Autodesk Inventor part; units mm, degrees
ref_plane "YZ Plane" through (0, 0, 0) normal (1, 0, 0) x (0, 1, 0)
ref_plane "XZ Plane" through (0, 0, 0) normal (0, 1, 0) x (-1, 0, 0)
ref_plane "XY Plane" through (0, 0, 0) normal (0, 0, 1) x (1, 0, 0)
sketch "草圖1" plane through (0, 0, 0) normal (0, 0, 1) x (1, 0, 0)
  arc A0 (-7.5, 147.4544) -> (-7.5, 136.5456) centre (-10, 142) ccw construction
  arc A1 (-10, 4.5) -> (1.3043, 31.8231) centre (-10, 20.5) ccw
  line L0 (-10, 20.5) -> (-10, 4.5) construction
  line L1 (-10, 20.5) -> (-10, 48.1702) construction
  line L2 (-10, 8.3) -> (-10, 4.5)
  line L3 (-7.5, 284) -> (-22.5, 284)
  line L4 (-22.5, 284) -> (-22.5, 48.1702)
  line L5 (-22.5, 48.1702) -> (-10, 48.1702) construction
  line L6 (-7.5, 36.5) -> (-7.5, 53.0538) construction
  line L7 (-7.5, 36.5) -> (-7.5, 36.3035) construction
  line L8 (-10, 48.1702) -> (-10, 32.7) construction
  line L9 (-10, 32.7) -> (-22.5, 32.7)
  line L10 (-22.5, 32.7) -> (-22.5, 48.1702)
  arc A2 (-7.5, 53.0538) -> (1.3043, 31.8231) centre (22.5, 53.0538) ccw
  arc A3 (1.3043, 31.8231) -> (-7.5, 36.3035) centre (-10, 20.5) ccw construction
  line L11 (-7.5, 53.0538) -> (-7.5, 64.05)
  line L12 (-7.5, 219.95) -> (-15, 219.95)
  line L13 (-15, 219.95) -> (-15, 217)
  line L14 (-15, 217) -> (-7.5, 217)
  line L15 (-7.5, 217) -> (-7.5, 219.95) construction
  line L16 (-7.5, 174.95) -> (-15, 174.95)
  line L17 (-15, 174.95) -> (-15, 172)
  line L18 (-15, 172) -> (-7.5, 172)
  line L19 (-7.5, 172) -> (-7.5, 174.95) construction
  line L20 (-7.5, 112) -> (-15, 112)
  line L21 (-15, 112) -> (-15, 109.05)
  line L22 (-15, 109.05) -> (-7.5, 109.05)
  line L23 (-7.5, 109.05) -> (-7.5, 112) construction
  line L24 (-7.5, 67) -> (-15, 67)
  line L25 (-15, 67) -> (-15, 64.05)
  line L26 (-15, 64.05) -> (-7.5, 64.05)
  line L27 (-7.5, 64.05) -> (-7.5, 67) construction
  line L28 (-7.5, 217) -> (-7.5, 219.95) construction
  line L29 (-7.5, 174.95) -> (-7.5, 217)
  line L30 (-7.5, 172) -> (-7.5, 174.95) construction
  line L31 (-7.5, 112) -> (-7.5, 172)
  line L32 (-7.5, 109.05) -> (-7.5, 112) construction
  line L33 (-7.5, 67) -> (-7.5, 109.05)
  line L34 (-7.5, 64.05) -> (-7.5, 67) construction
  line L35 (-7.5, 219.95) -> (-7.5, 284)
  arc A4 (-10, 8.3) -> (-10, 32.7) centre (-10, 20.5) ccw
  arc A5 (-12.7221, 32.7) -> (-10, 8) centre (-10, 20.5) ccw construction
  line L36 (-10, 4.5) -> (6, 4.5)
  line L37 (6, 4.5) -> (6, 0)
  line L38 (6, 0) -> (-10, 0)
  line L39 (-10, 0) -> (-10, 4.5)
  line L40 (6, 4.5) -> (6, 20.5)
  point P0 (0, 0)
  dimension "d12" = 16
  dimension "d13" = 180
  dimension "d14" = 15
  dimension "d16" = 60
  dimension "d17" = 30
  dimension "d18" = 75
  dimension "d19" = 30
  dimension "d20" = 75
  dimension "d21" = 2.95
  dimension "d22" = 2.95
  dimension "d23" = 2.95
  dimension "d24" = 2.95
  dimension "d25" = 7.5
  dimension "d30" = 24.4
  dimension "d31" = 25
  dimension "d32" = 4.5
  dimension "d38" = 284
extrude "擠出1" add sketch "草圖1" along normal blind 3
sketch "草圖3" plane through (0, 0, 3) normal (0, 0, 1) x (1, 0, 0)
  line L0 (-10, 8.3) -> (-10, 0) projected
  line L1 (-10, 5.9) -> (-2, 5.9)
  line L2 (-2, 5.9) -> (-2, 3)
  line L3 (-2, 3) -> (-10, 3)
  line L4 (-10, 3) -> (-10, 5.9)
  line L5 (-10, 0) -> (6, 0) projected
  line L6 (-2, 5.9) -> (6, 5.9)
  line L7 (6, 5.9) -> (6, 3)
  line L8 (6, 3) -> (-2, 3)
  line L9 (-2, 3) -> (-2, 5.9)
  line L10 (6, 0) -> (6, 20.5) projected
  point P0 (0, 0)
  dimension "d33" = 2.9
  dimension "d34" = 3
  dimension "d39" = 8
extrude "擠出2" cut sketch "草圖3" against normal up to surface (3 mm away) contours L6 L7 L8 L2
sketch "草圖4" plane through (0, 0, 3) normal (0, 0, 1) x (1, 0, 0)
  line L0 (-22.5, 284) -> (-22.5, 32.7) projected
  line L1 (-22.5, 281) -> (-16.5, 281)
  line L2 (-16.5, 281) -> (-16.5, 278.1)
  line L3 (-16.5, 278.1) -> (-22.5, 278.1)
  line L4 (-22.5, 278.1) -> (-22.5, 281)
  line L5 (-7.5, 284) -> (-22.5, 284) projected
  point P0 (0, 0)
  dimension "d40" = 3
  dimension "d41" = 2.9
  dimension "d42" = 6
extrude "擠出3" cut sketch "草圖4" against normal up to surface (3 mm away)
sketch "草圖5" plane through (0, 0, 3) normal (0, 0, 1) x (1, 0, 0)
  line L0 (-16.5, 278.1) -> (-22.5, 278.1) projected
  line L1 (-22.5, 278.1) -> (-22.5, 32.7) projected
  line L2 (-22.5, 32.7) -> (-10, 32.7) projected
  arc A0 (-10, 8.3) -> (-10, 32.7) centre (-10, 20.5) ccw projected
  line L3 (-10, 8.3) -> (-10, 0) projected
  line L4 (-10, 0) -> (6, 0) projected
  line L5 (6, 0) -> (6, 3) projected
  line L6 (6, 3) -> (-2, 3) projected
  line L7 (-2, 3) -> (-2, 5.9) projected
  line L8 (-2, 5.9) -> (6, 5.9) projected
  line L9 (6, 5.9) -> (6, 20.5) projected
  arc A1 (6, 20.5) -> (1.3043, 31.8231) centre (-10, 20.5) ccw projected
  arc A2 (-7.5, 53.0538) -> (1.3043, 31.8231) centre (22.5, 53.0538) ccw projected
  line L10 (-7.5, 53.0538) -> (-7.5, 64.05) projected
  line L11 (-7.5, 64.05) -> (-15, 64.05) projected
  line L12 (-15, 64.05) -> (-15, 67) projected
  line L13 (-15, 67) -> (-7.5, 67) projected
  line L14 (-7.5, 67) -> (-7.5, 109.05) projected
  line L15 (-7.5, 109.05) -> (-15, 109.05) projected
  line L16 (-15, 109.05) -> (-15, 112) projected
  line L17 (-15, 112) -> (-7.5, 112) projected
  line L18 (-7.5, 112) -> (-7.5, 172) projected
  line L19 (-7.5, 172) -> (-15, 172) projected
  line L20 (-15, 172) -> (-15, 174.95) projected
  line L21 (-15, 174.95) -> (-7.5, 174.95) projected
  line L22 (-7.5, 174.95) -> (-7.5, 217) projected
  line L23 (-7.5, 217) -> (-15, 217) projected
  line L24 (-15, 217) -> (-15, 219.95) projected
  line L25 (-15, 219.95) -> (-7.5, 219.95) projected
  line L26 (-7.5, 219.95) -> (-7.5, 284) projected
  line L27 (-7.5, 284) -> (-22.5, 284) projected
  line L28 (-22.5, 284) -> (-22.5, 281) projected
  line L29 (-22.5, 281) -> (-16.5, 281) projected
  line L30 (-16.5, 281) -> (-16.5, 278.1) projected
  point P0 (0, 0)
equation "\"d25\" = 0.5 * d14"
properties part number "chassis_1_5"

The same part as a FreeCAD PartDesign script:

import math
import FreeCAD as App
import Part
import Sketcher

doc = App.newDocument("Part")
body = doc.addObject("PartDesign::Body", "Body")

# Sketch on XY plane
sketch1 = body.newObject("Sketcher::SketchObject", "Sketch")
sketch1.AttachmentSupport = (doc.getObject("XY_Plane"), [""])
sketch1.MapMode = "FlatFace"
sketch1.addGeometry(Part.LineSegment(App.Vector(-10, 8.3, 0), App.Vector(-10, 0, 0)), False)
sketch1.addGeometry(Part.LineSegment(App.Vector(-10, 0, 0), App.Vector(6, 0, 0)), False)
sketch1.addGeometry(Part.LineSegment(App.Vector(6, 0, 0), App.Vector(6, 20.5, 0)), False)
sketch1.addGeometry(Part.ArcOfCircle(Part.Circle(App.Vector(-10, 20.5, 0), App.Vector(0, 0, 1), 16), math.radians(0), math.radians(45)), False)
sketch1.addGeometry(Part.ArcOfCircle(Part.Circle(App.Vector(22.5, 53.1, 0), App.Vector(0, 0, 1), 30), math.radians(180), math.radians(225)), False)
sketch1.addGeometry(Part.LineSegment(App.Vector(-7.5, 53.1, 0), App.Vector(-7.5, 64, 0)), False)
sketch1.addGeometry(Part.LineSegment(App.Vector(-7.5, 64, 0), App.Vector(-15, 64, 0)), False)
sketch1.addGeometry(Part.LineSegment(App.Vector(-15, 64, 0), App.Vector(-15, 67, 0)), False)
sketch1.addGeometry(Part.LineSegment(App.Vector(-15, 67, 0), App.Vector(-7.5, 67, 0)), False)
sketch1.addGeometry(Part.LineSegment(App.Vector(-7.5, 67, 0), App.Vector(-7.5, 109, 0)), False)
sketch1.addGeometry(Part.LineSegment(App.Vector(-7.5, 109, 0), App.Vector(-15, 109, 0)), False)
sketch1.addGeometry(Part.LineSegment(App.Vector(-15, 109, 0), App.Vector(-15, 112, 0)), False)
sketch1.addGeometry(Part.LineSegment(App.Vector(-15, 112, 0), App.Vector(-7.5, 112, 0)), False)
sketch1.addGeometry(Part.LineSegment(App.Vector(-7.5, 112, 0), App.Vector(-7.5, 172, 0)), False)
sketch1.addGeometry(Part.LineSegment(App.Vector(-7.5, 172, 0), App.Vector(-15, 172, 0)), False)
sketch1.addGeometry(Part.LineSegment(App.Vector(-15, 172, 0), App.Vector(-15, 174.9, 0)), False)
sketch1.addGeometry(Part.LineSegment(App.Vector(-15, 174.9, 0), App.Vector(-7.5, 174.9, 0)), False)
sketch1.addGeometry(Part.LineSegment(App.Vector(-7.5, 174.9, 0), App.Vector(-7.5, 217, 0)), False)
sketch1.addGeometry(Part.LineSegment(App.Vector(-7.5, 217, 0), App.Vector(-15, 217, 0)), False)
sketch1.addGeometry(Part.LineSegment(App.Vector(-15, 217, 0), App.Vector(-15, 219.9, 0)), False)
sketch1.addGeometry(Part.LineSegment(App.Vector(-15, 219.9, 0), App.Vector(-7.5, 219.9, 0)), False)
sketch1.addGeometry(Part.LineSegment(App.Vector(-7.5, 219.9, 0), App.Vector(-7.5, 284, 0)), False)
sketch1.addGeometry(Part.LineSegment(App.Vector(-7.5, 284, 0), App.Vector(-22.5, 284, 0)), False)
sketch1.addGeometry(Part.LineSegment(App.Vector(-22.5, 284, 0), App.Vector(-22.5, 32.7, 0)), False)
sketch1.addGeometry(Part.LineSegment(App.Vector(-22.5, 32.7, 0), App.Vector(-10, 32.7, 0)), False)
sketch1.addGeometry(Part.ArcOfCircle(Part.Circle(App.Vector(-10, 20.5, 0), App.Vector(0, 0, 1), 12.2), math.radians(-90), math.radians(90)), False)
sketch1.addConstraint(Sketcher.Constraint("Coincident", 0, 2, 1, 1))
sketch1.addConstraint(Sketcher.Constraint("Coincident", 1, 2, 2, 1))
sketch1.addConstraint(Sketcher.Constraint("Tangent", 2, 2, 3, 1))
sketch1.addConstraint(Sketcher.Constraint("Tangent", 3, 2, 4, 2))
sketch1.addConstraint(Sketcher.Constraint("Tangent", 4, 1, 5, 1))
sketch1.addConstraint(Sketcher.Constraint("Coincident", 5, 2, 6, 1))
sketch1.addConstraint(Sketcher.Constraint("Coincident", 6, 2, 7, 1))
sketch1.addConstraint(Sketcher.Constraint("Coincident", 7, 2, 8, 1))
sketch1.addConstraint(Sketcher.Constraint("Coincident", 8, 2, 9, 1))
sketch1.addConstraint(Sketcher.Constraint("Coincident", 9, 2, 10, 1))
sketch1.addConstraint(Sketcher.Constraint("Coincident", 10, 2, 11, 1))
sketch1.addConstraint(Sketcher.Constraint("Coincident", 11, 2, 12, 1))
sketch1.addConstraint(Sketcher.Constraint("Coincident", 12, 2, 13, 1))
sketch1.addConstraint(Sketcher.Constraint("Coincident", 13, 2, 14, 1))
sketch1.addConstraint(Sketcher.Constraint("Coincident", 14, 2, 15, 1))
sketch1.addConstraint(Sketcher.Constraint("Coincident", 15, 2, 16, 1))
sketch1.addConstraint(Sketcher.Constraint("Coincident", 16, 2, 17, 1))
sketch1.addConstraint(Sketcher.Constraint("Coincident", 17, 2, 18, 1))
sketch1.addConstraint(Sketcher.Constraint("Coincident", 18, 2, 19, 1))
sketch1.addConstraint(Sketcher.Constraint("Coincident", 19, 2, 20, 1))
sketch1.addConstraint(Sketcher.Constraint("Coincident", 20, 2, 21, 1))
sketch1.addConstraint(Sketcher.Constraint("Coincident", 21, 2, 22, 1))
sketch1.addConstraint(Sketcher.Constraint("Coincident", 22, 2, 23, 1))
sketch1.addConstraint(Sketcher.Constraint("Coincident", 23, 2, 24, 1))
sketch1.addConstraint(Sketcher.Constraint("Tangent", 24, 2, 25, 2))
sketch1.addConstraint(Sketcher.Constraint("Coincident", 25, 1, 0, 1))
sketch1.addConstraint(Sketcher.Constraint("Vertical", 0))
sketch1.addConstraint(Sketcher.Constraint("Horizontal", 1))
sketch1.addConstraint(Sketcher.Constraint("Vertical", 2))
sketch1.addConstraint(Sketcher.Constraint("Vertical", 5))
sketch1.addConstraint(Sketcher.Constraint("Horizontal", 6))
sketch1.addConstraint(Sketcher.Constraint("Vertical", 7))
sketch1.addConstraint(Sketcher.Constraint("Horizontal", 8))
sketch1.addConstraint(Sketcher.Constraint("Vertical", 9))
sketch1.addConstraint(Sketcher.Constraint("Horizontal", 10))
sketch1.addConstraint(Sketcher.Constraint("Vertical", 11))
sketch1.addConstraint(Sketcher.Constraint("Horizontal", 12))
sketch1.addConstraint(Sketcher.Constraint("Vertical", 13))
sketch1.addConstraint(Sketcher.Constraint("Horizontal", 14))
sketch1.addConstraint(Sketcher.Constraint("Vertical", 15))
sketch1.addConstraint(Sketcher.Constraint("Horizontal", 16))
sketch1.addConstraint(Sketcher.Constraint("Vertical", 17))
sketch1.addConstraint(Sketcher.Constraint("Horizontal", 18))
sketch1.addConstraint(Sketcher.Constraint("Vertical", 19))
sketch1.addConstraint(Sketcher.Constraint("Horizontal", 20))
sketch1.addConstraint(Sketcher.Constraint("Vertical", 21))
sketch1.addConstraint(Sketcher.Constraint("Horizontal", 22))
sketch1.addConstraint(Sketcher.Constraint("Vertical", 23))
sketch1.addConstraint(Sketcher.Constraint("Horizontal", 24))
sketch1.addConstraint(Sketcher.Constraint("Coincident", 25, 3, 3, 3))
sketch1.addConstraint(Sketcher.Constraint("PointOnObject", 0, 2, -1))
sketch1.addConstraint(Sketcher.Constraint("Vertical", 25, 3, 0, 2))
sketch1.addConstraint(Sketcher.Constraint("Vertical", 5, 2, 8, 2))
sketch1.addConstraint(Sketcher.Constraint("Vertical", 7, 2, 10, 2))
sketch1.addConstraint(Sketcher.Constraint("Vertical", 9, 2, 12, 2))
sketch1.addConstraint(Sketcher.Constraint("Vertical", 11, 2, 14, 2))
sketch1.addConstraint(Sketcher.Constraint("Vertical", 13, 2, 16, 2))
sketch1.addConstraint(Sketcher.Constraint("Vertical", 15, 2, 18, 2))
sketch1.addConstraint(Sketcher.Constraint("Vertical", 17, 2, 20, 2))
sketch1.addConstraint(Sketcher.Constraint("Equal", 7, 11))
sketch1.addConstraint(Sketcher.Constraint("Equal", 11, 15))
sketch1.addConstraint(Sketcher.Constraint("Equal", 9, 17))
sketch1.addConstraint(Sketcher.Constraint("Equal", 15, 19))
sketch1.addConstraint(Sketcher.Constraint("Radius", 3, 16.0))
sketch1.addConstraint(Sketcher.Constraint("Radius", 4, 30.0))
sketch1.addConstraint(Sketcher.Constraint("Radius", 25, 12.2))
sketch1.addConstraint(Sketcher.Constraint("DistanceX", 22, 2, 22, 1, 15.0))
sketch1.addConstraint(Sketcher.Constraint("DistanceY", 13, 1, 13, 2, 60.0))
sketch1.addConstraint(Sketcher.Constraint("DistanceX", 6, 2, 6, 1, 7.5))
sketch1.addConstraint(Sketcher.Constraint("DistanceX", 6, 2, -1, 1, 15.0))
sketch1.addConstraint(Sketcher.Constraint("DistanceY", -1, 1, 21, 2, 284.0))
sketch1.addConstraint(Sketcher.Constraint("DistanceY", 7, 1, 7, 2, 2.95))
sketch1.addConstraint(Sketcher.Constraint("DistanceX", 24, 1, 24, 2, 12.5))
sketch1.addConstraint(Sketcher.Constraint("DistanceY", 0, 2, 0, 1, 8.3))
sketch1.addConstraint(Sketcher.Constraint("DistanceY", -1, 1, 7, 2, 67.0))
sketch1.addConstraint(Sketcher.Constraint("DistanceY", -1, 1, 11, 2, 112.0))
pad1 = body.newObject("PartDesign::Pad", "Pad")
pad1.Profile = sketch1
pad1.Length = 3

# Sketch on XY plane
sketch2 = body.newObject("Sketcher::SketchObject", "Sketch001")
sketch2.AttachmentSupport = (doc.getObject("XY_Plane"), [""])
sketch2.MapMode = "FlatFace"
sketch2.AttachmentOffset = App.Placement(App.Vector(0, 0, 3), App.Rotation())
sketch2.addGeometry(Part.LineSegment(App.Vector(6, 5.9, 0), App.Vector(-2, 5.9, 0)), False)
sketch2.addGeometry(Part.LineSegment(App.Vector(-2, 5.9, 0), App.Vector(-2, 3, 0)), False)
sketch2.addGeometry(Part.LineSegment(App.Vector(-2, 3, 0), App.Vector(6, 3, 0)), False)
sketch2.addGeometry(Part.LineSegment(App.Vector(6, 3, 0), App.Vector(6, 5.9, 0)), False)
sketch2.addConstraint(Sketcher.Constraint("Coincident", 0, 2, 1, 1))
sketch2.addConstraint(Sketcher.Constraint("Coincident", 1, 2, 2, 1))
sketch2.addConstraint(Sketcher.Constraint("Coincident", 2, 2, 3, 1))
sketch2.addConstraint(Sketcher.Constraint("Coincident", 3, 2, 0, 1))
sketch2.addConstraint(Sketcher.Constraint("Horizontal", 0))
sketch2.addConstraint(Sketcher.Constraint("Vertical", 1))
sketch2.addConstraint(Sketcher.Constraint("Horizontal", 2))
sketch2.addConstraint(Sketcher.Constraint("Vertical", 3))
sketch2.addConstraint(Sketcher.Constraint("DistanceX", 0, 2, 0, 1, 8.0))
sketch2.addConstraint(Sketcher.Constraint("DistanceY", 1, 2, 1, 1, 2.9))
sketch2.addConstraint(Sketcher.Constraint("DistanceY", -1, 1, 1, 2, 3.0))
sketch2.addConstraint(Sketcher.Constraint("DistanceX", 0, 2, -1, 1, 2.0))
pocket1 = body.newObject("PartDesign::Pocket", "Pocket")
pocket1.Profile = sketch2
pocket1.Length = 3

# Sketch on XY plane
sketch3 = body.newObject("Sketcher::SketchObject", "Sketch002")
sketch3.AttachmentSupport = (doc.getObject("XY_Plane"), [""])
sketch3.MapMode = "FlatFace"
sketch3.AttachmentOffset = App.Placement(App.Vector(0, 0, 3), App.Rotation())
sketch3.addGeometry(Part.LineSegment(App.Vector(-16.5, 281, 0), App.Vector(-22.5, 281, 0)), False)
sketch3.addGeometry(Part.LineSegment(App.Vector(-22.5, 281, 0), App.Vector(-22.5, 278.1, 0)), False)
sketch3.addGeometry(Part.LineSegment(App.Vector(-22.5, 278.1, 0), App.Vector(-16.5, 278.1, 0)), False)
sketch3.addGeometry(Part.LineSegment(App.Vector(-16.5, 278.1, 0), App.Vector(-16.5, 281, 0)), False)
sketch3.addConstraint(Sketcher.Constraint("Coincident", 0, 2, 1, 1))
sketch3.addConstraint(Sketcher.Constraint("Coincident", 1, 2, 2, 1))
sketch3.addConstraint(Sketcher.Constraint("Coincident", 2, 2, 3, 1))
sketch3.addConstraint(Sketcher.Constraint("Coincident", 3, 2, 0, 1))
sketch3.addConstraint(Sketcher.Constraint("Horizontal", 0))
sketch3.addConstraint(Sketcher.Constraint("Vertical", 1))
sketch3.addConstraint(Sketcher.Constraint("Horizontal", 2))
sketch3.addConstraint(Sketcher.Constraint("Vertical", 3))
sketch3.addConstraint(Sketcher.Constraint("DistanceX", 0, 2, 0, 1, 6.0))
sketch3.addConstraint(Sketcher.Constraint("DistanceY", 1, 2, 1, 1, 2.9))
sketch3.addConstraint(Sketcher.Constraint("DistanceY", -1, 1, 0, 2, 281.0))
sketch3.addConstraint(Sketcher.Constraint("DistanceX", 0, 2, -1, 1, 22.5))
pocket2 = body.newObject("PartDesign::Pocket", "Pocket001")
pocket2.Profile = sketch3
pocket2.Length = 3

doc.recompute()
